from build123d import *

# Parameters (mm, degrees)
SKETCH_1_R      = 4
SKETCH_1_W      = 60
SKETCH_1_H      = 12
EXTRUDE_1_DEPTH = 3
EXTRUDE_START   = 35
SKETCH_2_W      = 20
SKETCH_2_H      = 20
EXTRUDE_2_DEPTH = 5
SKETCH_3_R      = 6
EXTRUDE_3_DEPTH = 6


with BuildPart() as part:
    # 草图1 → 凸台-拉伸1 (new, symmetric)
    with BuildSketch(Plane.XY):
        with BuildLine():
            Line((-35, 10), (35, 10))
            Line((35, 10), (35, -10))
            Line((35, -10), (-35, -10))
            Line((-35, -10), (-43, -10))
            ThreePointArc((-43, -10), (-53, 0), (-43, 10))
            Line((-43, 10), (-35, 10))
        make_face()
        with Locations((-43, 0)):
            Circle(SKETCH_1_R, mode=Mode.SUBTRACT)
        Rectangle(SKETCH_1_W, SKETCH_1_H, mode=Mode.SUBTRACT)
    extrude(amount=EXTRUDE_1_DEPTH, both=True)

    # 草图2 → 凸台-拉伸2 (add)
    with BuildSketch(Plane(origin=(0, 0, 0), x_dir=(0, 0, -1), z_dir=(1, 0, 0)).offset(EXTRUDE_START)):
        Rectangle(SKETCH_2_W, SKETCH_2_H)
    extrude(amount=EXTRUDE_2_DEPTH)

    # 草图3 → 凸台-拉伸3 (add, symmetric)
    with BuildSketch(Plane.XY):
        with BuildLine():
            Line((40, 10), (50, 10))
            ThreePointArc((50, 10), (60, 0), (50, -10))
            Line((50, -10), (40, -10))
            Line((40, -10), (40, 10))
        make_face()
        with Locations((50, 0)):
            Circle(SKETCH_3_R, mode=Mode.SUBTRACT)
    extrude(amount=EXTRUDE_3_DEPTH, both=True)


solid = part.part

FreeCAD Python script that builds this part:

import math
import FreeCAD as App
import Part
import Sketcher

V = App.Vector
Q = App.Units.Quantity


def add_polygon(sketch, points):
    """Adds a closed chain of lines whose ends are joined by coincident constraints."""
    first, n = sketch.GeometryCount, len(points)
    for a, b in zip(points, points[1:] + points[:1]):
        sketch.addGeometry(Part.LineSegment(App.Vector(*a, 0), App.Vector(*b, 0)), False)
    for i in range(n):
        sketch.addConstraint(Sketcher.Constraint("Coincident", first + i, 2, first + (i + 1) % n, 1))

doc = App.newDocument("Part")
body = doc.addObject("PartDesign::Body", "Body")

# Sketch on XY plane
sketch1 = body.newObject("Sketcher::SketchObject", "Sketch")
sketch1.AttachmentSupport = (doc.getObject("XY_Plane"), [""])
sketch1.MapMode = "FlatFace"
sketch1.addGeometry(Part.LineSegment(V(35, -10, 0), V(35, 10, 0)), False)  # 0
sketch1.addGeometry(Part.LineSegment(V(35, 10, 0), V(-43, 10, 0)), False)  # 1
sketch1.addGeometry(Part.ArcOfCircle(Part.Circle(V(-43, 0, 0), V(0, 0, 1), 10), math.radians(90), math.radians(270)), False)  # 2
sketch1.addGeometry(Part.LineSegment(V(-43, -10, 0), V(35, -10, 0)), False)  # 3
add_polygon(sketch1, [(-30, -6), (-30, 6), (30, 6), (30, -6)])  # lines 4-7
sketch1.addGeometry(Part.Circle(V(-43, 0, 0), V(0, 0, 1), 4), False)  # 8
sketch1.addConstraint(Sketcher.Constraint("Coincident", 0, 2, 1, 1))
sketch1.addConstraint(Sketcher.Constraint("Tangent", 1, 2, 2, 1))
sketch1.addConstraint(Sketcher.Constraint("Tangent", 2, 2, 3, 1))
sketch1.addConstraint(Sketcher.Constraint("Coincident", 3, 2, 0, 1))
sketch1.addConstraint(Sketcher.Constraint("Vertical", 0))
sketch1.addConstraint(Sketcher.Constraint("Horizontal", 1))
sketch1.addConstraint(Sketcher.Constraint("Horizontal", 3))
sketch1.addConstraint(Sketcher.Constraint("Vertical", 4))
sketch1.addConstraint(Sketcher.Constraint("Horizontal", 5))
sketch1.addConstraint(Sketcher.Constraint("Vertical", 6))
sketch1.addConstraint(Sketcher.Constraint("Horizontal", 7))
sketch1.addConstraint(Sketcher.Constraint("Coincident", 8, 3, 2, 3))
sketch1.addConstraint(Sketcher.Constraint("Symmetric", 4, 2, 6, 2, -1, 1))
sketch1.addConstraint(Sketcher.Constraint("PointOnObject", 2, 3, -1))
sketch1.addConstraint(Sketcher.Constraint("Diameter", 8, Q("8 mm")))
sketch1.addConstraint(Sketcher.Constraint("Radius", 2, Q("10 mm")))
sketch1.addConstraint(Sketcher.Constraint("DistanceX", 1, 2, 1, 1, Q("78 mm")))
sketch1.addConstraint(Sketcher.Constraint("DistanceX", 5, 1, 5, 2, Q("60 mm")))
sketch1.addConstraint(Sketcher.Constraint("DistanceY", 4, 1, 4, 2, Q("12 mm")))
sketch1.addConstraint(Sketcher.Constraint("DistanceX", 2, 3, -1, 1, Q("43 mm")))
pad1 = body.newObject("PartDesign::Pad", "Pad")
pad1.Profile = sketch1
pad1.Length = 6
pad1.Midplane = True

# Sketch on YZ plane
sketch2 = body.newObject("Sketcher::SketchObject", "Sketch001")
sketch2.AttachmentSupport = (doc.getObject("YZ_Plane"), [""])
sketch2.MapMode = "FlatFace"
sketch2.AttachmentOffset = App.Placement(V(0, 0, 35), App.Rotation())
add_polygon(sketch2, [(10, 10), (-10, 10), (-10, -10), (10, -10)])  # lines 0-3
sketch2.addConstraint(Sketcher.Constraint("Horizontal", 0))
sketch2.addConstraint(Sketcher.Constraint("Vertical", 1))
sketch2.addConstraint(Sketcher.Constraint("Horizontal", 2))
sketch2.addConstraint(Sketcher.Constraint("Vertical", 3))
sketch2.addConstraint(Sketcher.Constraint("Symmetric", 0, 2, 2, 2, -1, 1))
sketch2.addConstraint(Sketcher.Constraint("Equal", 2, 1))
sketch2.addConstraint(Sketcher.Constraint("DistanceX", 0, 2, 0, 1, Q("20 mm")))
pad2 = body.newObject("PartDesign::Pad", "Pad001")
pad2.Profile = sketch2
pad2.Length = 5

# Sketch on XY plane
sketch3 = body.newObject("Sketcher::SketchObject", "Sketch002")
sketch3.AttachmentSupport = (doc.getObject("XY_Plane"), [""])
sketch3.MapMode = "FlatFace"
sketch3.addGeometry(Part.LineSegment(V(50, 10, 0), V(40, 10, 0)), False)
sketch3.addGeometry(Part.LineSegment(V(40, 10, 0), V(40, -10, 0)), False)
sketch3.addGeometry(Part.LineSegment(V(40, -10, 0), V(50, -10, 0)), False)
sketch3.addGeometry(Part.ArcOfCircle(Part.Circle(V(50, 0, 0), V(0, 0, 1), 10), math.radians(-90), math.radians(90)), False)
sketch3.addGeometry(Part.Circle(V(50, 0, 0), V(0, 0, 1), 6), False)
sketch3.addConstraint(Sketcher.Constraint("Coincident", 0, 2, 1, 1))
sketch3.addConstraint(Sketcher.Constraint("Coincident", 1, 2, 2, 1))
sketch3.addConstraint(Sketcher.Constraint("Tangent", 2, 2, 3, 1))
sketch3.addConstraint(Sketcher.Constraint("Tangent", 3, 2, 0, 1))
sketch3.addConstraint(Sketcher.Constraint("Horizontal", 0))
sketch3.addConstraint(Sketcher.Constraint("Vertical", 1))
sketch3.addConstraint(Sketcher.Constraint("Horizontal", 2))
sketch3.addConstraint(Sketcher.Constraint("Coincident", 4, 3, 3, 3))
sketch3.addConstraint(Sketcher.Constraint("PointOnObject", 3, 3, -1))
sketch3.addConstraint(Sketcher.Constraint("Diameter", 4, Q("12 mm")))
sketch3.addConstraint(Sketcher.Constraint("Radius", 3, Q("10 mm")))
sketch3.addConstraint(Sketcher.Constraint("DistanceX", 0, 2, 0, 1, Q("10 mm")))
sketch3.addConstraint(Sketcher.Constraint("DistanceX", -1, 1, 3, 3, Q("50 mm")))
pad3 = body.newObject("PartDesign::Pad", "Pad002")
pad3.Profile = sketch3
pad3.Length = 12
pad3.Midplane = True

doc.recompute()
